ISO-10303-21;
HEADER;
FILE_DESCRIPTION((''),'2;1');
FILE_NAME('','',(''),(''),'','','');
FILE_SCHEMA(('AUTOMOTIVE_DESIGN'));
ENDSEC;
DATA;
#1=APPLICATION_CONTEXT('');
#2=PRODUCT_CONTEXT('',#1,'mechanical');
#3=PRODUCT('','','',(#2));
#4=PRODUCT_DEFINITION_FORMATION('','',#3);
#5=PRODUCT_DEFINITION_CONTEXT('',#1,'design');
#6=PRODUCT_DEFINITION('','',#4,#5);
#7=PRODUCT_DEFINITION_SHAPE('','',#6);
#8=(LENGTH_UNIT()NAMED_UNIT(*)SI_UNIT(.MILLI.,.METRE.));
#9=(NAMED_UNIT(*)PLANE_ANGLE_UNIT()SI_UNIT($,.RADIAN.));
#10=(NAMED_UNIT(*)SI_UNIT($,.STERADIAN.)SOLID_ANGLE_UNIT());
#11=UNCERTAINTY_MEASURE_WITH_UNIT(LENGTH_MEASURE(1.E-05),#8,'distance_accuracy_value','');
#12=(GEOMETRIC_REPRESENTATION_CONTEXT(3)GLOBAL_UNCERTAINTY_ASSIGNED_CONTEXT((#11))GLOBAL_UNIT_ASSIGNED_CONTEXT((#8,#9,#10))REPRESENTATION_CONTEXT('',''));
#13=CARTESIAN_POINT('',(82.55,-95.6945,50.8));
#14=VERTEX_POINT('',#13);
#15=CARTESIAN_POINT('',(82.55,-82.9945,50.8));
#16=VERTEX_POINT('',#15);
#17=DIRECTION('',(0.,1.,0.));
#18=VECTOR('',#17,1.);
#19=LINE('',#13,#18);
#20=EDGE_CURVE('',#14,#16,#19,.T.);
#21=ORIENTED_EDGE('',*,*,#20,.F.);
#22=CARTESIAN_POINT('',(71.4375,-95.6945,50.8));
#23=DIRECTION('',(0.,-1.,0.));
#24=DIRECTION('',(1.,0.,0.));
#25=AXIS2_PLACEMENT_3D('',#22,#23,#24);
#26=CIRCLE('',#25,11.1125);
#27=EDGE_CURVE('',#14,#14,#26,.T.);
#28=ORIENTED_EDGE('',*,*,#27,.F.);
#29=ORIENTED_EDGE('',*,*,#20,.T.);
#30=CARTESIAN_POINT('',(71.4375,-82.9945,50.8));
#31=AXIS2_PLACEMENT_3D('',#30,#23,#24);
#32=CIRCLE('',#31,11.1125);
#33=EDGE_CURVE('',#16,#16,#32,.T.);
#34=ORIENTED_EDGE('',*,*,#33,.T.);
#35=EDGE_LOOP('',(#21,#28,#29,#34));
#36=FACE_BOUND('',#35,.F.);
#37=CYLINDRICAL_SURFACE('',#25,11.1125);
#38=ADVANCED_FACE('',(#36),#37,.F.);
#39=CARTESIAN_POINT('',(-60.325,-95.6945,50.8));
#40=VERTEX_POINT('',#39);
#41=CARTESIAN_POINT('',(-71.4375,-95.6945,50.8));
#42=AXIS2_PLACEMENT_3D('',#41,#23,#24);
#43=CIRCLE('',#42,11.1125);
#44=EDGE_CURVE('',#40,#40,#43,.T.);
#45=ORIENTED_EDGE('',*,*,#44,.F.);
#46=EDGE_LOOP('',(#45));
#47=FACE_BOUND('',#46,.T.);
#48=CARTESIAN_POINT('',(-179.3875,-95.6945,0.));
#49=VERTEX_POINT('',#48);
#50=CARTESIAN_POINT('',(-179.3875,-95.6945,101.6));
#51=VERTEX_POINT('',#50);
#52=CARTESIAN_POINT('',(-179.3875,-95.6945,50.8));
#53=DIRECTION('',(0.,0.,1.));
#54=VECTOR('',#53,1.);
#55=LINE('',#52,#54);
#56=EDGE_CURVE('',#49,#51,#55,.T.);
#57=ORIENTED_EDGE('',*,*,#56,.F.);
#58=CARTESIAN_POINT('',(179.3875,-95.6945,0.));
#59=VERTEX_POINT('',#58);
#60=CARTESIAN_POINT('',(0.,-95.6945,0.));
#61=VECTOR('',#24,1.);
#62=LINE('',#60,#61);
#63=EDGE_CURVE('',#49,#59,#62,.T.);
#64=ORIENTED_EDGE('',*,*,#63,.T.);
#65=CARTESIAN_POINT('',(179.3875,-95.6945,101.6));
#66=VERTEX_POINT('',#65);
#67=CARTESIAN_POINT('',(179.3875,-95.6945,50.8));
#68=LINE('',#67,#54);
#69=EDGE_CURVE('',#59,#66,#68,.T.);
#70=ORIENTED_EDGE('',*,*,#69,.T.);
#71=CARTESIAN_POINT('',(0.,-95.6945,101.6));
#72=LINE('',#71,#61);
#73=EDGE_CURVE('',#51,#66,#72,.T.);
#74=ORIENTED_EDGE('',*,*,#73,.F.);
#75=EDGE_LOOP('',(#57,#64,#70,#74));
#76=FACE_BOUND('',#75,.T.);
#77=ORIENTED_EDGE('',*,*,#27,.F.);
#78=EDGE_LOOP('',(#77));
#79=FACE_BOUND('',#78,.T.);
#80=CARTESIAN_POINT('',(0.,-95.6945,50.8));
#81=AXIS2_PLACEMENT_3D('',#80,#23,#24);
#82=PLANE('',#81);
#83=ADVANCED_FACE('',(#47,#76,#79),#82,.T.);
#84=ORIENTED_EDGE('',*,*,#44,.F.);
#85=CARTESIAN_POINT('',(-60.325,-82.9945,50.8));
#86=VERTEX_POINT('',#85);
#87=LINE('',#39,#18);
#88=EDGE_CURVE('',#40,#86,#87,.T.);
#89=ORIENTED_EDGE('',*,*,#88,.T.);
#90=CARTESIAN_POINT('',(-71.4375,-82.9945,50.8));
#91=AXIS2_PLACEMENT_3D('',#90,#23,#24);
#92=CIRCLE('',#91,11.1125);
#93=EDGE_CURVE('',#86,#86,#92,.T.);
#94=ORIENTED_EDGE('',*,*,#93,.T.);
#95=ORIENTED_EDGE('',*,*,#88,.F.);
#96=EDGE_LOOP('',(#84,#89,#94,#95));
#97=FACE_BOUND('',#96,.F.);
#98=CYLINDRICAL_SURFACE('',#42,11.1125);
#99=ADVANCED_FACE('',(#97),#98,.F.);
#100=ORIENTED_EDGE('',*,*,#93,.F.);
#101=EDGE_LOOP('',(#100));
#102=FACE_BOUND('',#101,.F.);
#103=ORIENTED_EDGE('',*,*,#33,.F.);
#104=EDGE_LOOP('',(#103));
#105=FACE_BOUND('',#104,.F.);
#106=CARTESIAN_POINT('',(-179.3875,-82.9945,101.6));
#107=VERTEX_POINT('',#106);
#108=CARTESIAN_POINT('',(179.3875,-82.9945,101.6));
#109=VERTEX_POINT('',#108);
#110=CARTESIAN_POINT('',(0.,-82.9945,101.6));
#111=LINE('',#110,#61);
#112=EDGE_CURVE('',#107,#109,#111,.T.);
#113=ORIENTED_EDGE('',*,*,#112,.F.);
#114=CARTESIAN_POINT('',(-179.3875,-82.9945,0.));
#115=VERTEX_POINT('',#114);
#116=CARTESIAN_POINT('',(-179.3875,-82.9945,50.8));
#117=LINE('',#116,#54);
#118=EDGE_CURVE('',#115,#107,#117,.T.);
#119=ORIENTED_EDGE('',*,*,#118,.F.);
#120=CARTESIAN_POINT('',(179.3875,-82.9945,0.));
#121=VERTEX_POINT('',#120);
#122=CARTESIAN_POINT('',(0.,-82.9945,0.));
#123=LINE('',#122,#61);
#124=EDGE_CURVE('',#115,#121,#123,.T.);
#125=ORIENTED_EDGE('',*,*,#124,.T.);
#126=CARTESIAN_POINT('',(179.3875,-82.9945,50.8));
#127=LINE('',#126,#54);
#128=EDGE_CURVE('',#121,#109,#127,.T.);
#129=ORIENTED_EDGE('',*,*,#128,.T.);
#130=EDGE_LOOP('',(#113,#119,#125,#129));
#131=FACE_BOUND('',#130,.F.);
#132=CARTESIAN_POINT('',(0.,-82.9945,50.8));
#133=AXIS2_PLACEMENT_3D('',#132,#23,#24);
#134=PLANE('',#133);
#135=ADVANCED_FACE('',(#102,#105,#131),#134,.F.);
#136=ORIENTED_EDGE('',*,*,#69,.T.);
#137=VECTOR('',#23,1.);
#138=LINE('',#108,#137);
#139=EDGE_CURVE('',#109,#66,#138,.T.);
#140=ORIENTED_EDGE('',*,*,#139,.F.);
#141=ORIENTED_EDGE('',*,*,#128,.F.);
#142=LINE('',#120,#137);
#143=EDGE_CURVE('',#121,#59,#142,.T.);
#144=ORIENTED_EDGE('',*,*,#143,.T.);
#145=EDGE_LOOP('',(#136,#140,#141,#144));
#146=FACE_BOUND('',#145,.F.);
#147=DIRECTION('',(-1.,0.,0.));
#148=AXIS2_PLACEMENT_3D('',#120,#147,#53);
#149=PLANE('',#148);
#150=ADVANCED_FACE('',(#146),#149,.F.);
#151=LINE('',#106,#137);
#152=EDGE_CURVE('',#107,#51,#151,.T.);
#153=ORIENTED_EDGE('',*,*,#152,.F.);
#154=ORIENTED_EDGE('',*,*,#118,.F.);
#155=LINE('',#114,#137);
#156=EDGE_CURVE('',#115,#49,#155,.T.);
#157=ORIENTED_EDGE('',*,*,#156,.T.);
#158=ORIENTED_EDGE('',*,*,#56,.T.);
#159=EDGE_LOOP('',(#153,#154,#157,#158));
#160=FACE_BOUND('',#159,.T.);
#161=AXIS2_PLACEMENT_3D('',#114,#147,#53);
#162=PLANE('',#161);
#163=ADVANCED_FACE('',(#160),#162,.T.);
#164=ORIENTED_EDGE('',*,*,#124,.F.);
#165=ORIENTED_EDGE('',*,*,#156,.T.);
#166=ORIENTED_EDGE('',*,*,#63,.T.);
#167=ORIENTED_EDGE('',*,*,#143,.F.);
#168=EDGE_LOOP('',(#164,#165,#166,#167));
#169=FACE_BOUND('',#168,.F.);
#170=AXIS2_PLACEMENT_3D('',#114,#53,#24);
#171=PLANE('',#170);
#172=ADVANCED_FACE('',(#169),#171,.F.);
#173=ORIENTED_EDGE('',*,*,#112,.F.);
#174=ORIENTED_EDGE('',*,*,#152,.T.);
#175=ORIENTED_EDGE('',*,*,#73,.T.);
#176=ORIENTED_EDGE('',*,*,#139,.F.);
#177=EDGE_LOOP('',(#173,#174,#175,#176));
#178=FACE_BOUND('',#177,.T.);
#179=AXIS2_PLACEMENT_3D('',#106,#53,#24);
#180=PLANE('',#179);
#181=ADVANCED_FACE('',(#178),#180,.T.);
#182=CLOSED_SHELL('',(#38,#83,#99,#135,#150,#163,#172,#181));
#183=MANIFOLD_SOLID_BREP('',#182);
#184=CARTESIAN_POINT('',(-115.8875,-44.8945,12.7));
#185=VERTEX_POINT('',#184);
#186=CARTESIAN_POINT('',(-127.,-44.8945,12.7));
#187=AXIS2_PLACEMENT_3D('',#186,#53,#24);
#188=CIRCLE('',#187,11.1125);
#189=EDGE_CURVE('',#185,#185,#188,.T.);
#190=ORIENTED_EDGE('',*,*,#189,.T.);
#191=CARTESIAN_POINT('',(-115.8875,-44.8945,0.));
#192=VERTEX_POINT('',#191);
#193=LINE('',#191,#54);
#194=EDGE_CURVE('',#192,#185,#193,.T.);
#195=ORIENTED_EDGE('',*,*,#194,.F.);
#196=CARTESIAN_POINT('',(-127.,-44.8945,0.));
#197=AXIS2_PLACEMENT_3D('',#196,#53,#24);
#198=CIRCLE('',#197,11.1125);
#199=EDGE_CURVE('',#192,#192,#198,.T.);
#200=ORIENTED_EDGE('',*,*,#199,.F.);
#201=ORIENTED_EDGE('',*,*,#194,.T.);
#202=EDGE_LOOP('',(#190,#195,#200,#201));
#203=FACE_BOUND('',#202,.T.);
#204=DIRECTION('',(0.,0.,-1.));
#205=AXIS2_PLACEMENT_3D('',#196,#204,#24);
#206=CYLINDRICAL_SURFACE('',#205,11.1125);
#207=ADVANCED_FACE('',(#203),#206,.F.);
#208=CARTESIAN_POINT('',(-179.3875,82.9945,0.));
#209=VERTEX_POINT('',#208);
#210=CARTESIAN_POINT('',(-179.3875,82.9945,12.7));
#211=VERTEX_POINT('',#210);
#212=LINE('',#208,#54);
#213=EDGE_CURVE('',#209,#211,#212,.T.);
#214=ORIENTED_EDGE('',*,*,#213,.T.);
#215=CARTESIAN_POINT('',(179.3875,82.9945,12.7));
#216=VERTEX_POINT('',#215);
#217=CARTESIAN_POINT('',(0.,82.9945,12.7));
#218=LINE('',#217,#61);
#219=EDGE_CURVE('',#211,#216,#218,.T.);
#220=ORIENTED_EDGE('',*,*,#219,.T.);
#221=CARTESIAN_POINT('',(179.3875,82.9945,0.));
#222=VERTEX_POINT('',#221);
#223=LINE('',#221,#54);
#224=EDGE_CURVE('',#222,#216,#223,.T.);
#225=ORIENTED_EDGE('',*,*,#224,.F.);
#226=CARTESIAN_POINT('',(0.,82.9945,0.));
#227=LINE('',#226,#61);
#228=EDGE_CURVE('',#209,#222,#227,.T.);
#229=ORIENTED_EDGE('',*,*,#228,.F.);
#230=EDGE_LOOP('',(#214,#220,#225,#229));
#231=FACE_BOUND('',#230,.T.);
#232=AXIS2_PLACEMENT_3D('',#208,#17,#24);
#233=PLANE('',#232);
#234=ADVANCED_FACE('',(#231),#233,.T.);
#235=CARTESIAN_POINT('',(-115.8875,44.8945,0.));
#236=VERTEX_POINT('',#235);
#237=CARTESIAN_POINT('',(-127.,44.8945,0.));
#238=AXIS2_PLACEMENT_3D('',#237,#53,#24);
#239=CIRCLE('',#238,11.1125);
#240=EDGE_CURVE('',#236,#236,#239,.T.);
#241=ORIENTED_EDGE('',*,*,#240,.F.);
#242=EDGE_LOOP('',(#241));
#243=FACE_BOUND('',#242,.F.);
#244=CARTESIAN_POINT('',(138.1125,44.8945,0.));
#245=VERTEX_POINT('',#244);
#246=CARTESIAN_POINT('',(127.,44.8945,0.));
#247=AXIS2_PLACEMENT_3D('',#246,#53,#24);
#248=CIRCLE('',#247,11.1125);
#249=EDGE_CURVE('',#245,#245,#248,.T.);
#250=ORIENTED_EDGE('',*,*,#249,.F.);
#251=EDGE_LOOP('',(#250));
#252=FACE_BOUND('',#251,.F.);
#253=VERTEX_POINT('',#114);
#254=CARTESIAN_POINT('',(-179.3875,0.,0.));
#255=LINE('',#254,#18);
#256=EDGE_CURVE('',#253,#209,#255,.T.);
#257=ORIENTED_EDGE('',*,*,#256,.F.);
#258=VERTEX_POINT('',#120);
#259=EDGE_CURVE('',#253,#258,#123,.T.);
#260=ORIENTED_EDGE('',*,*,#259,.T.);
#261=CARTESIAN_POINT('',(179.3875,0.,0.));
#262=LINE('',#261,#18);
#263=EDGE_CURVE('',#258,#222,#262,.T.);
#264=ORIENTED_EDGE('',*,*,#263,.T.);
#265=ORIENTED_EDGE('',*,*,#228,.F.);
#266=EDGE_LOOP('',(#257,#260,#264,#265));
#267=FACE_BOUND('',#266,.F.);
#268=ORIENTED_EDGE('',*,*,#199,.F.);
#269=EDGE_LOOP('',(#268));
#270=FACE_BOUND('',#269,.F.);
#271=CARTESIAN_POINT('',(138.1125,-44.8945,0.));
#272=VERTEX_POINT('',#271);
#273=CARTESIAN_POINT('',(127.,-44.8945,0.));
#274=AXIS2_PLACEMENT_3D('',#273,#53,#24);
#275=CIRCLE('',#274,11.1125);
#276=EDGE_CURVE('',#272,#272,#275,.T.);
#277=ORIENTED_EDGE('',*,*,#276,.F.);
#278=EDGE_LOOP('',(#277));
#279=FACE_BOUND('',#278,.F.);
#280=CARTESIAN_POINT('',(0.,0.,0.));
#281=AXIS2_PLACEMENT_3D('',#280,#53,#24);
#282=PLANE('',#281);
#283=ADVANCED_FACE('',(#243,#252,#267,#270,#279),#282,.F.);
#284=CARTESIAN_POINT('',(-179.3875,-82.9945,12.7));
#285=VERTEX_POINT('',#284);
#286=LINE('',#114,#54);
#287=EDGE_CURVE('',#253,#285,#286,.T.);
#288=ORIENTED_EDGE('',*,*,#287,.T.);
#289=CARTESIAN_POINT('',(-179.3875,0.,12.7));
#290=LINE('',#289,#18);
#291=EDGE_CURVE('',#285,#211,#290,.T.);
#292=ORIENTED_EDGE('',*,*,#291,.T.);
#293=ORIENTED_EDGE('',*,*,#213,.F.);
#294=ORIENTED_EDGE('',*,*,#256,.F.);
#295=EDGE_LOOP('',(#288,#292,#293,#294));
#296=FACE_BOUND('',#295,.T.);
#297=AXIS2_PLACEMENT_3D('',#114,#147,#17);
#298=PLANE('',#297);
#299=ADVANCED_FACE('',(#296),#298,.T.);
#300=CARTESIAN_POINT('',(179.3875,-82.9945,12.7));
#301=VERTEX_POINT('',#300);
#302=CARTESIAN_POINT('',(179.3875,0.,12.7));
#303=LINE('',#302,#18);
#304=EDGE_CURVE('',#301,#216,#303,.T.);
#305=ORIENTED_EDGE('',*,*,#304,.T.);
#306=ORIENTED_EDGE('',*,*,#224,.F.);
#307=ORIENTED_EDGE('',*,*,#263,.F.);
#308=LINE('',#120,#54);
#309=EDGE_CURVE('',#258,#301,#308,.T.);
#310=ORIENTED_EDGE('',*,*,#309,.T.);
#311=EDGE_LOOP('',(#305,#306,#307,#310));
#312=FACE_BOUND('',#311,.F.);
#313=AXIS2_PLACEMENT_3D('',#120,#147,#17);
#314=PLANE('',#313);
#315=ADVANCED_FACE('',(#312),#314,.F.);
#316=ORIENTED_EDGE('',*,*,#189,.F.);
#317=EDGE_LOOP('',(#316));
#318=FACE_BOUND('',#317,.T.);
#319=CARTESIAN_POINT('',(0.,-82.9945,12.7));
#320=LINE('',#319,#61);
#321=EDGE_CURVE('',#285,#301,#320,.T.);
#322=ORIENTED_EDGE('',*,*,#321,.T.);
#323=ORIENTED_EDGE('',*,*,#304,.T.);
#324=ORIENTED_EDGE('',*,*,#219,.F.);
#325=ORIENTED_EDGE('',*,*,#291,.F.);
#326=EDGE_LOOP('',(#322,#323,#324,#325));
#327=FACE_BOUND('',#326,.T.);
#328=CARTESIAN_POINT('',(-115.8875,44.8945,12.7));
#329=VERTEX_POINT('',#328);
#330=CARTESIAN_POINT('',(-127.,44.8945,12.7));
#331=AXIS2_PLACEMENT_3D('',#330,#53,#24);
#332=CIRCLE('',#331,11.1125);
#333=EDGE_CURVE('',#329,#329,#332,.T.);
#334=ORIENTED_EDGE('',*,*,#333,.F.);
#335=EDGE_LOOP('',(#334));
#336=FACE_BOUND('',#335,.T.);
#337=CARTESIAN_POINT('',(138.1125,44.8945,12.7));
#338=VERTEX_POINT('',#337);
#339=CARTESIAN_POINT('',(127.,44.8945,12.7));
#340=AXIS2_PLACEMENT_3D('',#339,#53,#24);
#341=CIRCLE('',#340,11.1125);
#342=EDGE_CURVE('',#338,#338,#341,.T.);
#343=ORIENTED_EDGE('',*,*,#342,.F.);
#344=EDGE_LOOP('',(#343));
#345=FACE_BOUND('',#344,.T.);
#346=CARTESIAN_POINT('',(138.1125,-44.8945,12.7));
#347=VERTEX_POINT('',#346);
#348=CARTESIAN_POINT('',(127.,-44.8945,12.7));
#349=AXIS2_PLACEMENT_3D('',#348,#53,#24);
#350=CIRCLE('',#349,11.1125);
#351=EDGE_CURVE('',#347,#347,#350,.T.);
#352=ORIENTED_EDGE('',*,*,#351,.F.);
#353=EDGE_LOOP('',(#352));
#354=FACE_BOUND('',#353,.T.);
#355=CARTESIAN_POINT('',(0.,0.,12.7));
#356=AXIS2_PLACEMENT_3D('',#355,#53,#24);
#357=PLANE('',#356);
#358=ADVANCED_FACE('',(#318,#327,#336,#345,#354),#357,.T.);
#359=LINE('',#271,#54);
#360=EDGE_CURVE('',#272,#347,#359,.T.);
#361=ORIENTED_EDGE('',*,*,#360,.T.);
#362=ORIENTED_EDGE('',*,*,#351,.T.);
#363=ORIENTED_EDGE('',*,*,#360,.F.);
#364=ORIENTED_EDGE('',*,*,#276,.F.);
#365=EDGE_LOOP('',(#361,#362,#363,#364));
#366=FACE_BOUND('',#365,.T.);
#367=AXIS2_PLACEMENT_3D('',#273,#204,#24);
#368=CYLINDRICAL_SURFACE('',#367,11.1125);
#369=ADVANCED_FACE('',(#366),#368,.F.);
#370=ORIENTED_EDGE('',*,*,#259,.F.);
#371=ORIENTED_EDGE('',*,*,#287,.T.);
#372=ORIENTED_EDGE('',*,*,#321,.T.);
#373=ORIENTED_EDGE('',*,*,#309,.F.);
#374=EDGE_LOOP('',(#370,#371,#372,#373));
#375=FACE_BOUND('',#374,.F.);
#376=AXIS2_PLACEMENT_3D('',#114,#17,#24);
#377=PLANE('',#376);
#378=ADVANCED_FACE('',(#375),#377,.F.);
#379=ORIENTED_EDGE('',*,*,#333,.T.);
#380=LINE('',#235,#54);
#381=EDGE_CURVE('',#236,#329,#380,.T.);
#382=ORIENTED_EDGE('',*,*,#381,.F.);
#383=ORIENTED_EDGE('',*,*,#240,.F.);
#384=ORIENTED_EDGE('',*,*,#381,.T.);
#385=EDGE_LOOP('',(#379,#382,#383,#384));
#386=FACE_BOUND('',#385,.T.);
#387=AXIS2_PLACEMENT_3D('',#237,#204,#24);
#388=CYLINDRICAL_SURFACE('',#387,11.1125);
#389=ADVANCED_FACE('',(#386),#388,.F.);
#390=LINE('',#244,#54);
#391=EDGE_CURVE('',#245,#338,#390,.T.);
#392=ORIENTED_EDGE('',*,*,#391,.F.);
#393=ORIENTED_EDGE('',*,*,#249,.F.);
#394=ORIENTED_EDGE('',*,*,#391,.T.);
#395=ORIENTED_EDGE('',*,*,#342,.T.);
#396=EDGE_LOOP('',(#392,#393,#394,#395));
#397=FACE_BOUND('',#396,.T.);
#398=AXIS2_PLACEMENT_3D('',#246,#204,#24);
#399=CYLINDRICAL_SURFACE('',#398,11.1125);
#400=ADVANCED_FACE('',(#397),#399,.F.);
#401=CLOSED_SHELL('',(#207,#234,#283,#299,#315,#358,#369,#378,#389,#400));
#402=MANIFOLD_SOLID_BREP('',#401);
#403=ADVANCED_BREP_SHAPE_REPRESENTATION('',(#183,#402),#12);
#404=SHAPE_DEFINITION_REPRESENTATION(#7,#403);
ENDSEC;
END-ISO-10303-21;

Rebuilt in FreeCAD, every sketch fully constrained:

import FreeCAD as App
import Part
import Sketcher

V = App.Vector
Q = App.Units.Quantity

doc = App.newDocument("Part")
params = doc.addObject("Spreadsheet::Sheet", "Params")
for row, (alias, value) in enumerate([
    ("sketch1_diameter", "0.875 in"),
    ("sketch1_width", "14.125 in"),
    ("sketch1_height", "6.535 in"),
    ("pad1_length", "0.5 in"),
    ("sketch2_height", "4 in"),
    ("sketch2_width", "14.125 in"),
    ("pad2_length", "0.5 in"),
    ("sketch3_diameter", "0.875 in"),
], start=1):
    params.set(f"A{row}", alias)
    params.set(f"B{row}", "=" + value)
    params.setAlias(f"B{row}", alias)

body = doc.addObject("PartDesign::Body", "Body")

sketch1 = body.newObject("Sketcher::SketchObject", "Sketch")
sketch1.AttachmentSupport = (doc.getObject("XY_Plane"), [""])
sketch1.MapMode = "FlatFace"
sketch1.addGeometry([
    Part.LineSegment(V(-179, 83, 0), V(-179, -83, 0)),
    Part.LineSegment(V(-179, -83, 0), V(179, -83, 0)),
    Part.LineSegment(V(179, -83, 0), V(179, 83, 0)),
    Part.LineSegment(V(179, 83, 0), V(-179, 83, 0)),
    Part.Circle(V(-127, -45, 0), V(0, 0, 1), 11),
    Part.Circle(V(127, -45, 0), V(0, 0, 1), 11),
    Part.Circle(V(-127, 45, 0), V(0, 0, 1), 11),
    Part.Circle(V(127, 45, 0), V(0, 0, 1), 11),
], False)
sketch1.addConstraint([
    Sketcher.Constraint("Coincident", 0, 2, 1, 1),
    Sketcher.Constraint("Coincident", 1, 2, 2, 1),
    Sketcher.Constraint("Coincident", 2, 2, 3, 1),
    Sketcher.Constraint("Coincident", 3, 2, 0, 1),
    Sketcher.Constraint("Vertical", 0),
    Sketcher.Constraint("Horizontal", 1),
    Sketcher.Constraint("Vertical", 2),
    Sketcher.Constraint("Horizontal", 3),
    Sketcher.Constraint("Equal", 4, 5),
    Sketcher.Constraint("Equal", 5, 6),
    Sketcher.Constraint("Equal", 6, 7),
    Sketcher.Constraint("Symmetric", 5, 3, 6, 3, -1, 1),
    Sketcher.Constraint("Symmetric", 4, 3, 7, 3, -1, 1),
    Sketcher.Constraint("Symmetric", 0, 2, 2, 2, -1, 1),
    Sketcher.Constraint("Symmetric", 4, 3, 5, 3, -2),
    Sketcher.Constraint("Diameter", 4, Q("0.875 in")),
    Sketcher.Constraint("DistanceX", 4, 3, -1, 1, Q("5 in")),
    Sketcher.Constraint("DistanceY", 0, 2, 4, 3, Q("1.5 in")),
    Sketcher.Constraint("DistanceX", 1, 1, 1, 2, Q("14.125 in")),
    Sketcher.Constraint("DistanceY", 0, 2, 0, 1, Q("6.535 in")),
])
sketch1.setExpression("Constraints[15]", "Params.sketch1_diameter")
sketch1.setExpression("Constraints[18]", "Params.sketch1_width")
sketch1.setExpression("Constraints[19]", "Params.sketch1_height")
pad1 = body.newObject("PartDesign::Pad", "Pad")
pad1.Profile = sketch1
pad1.setExpression("Length", "Params.pad1_length")
body2 = doc.addObject("PartDesign::Body", "Body001")

sketch2 = body2.newObject("Sketcher::SketchObject", "Sketch001")
sketch2.AttachmentSupport = (doc.getObject("XZ_Plane001"), [""])
sketch2.MapMode = "FlatFace"
sketch2.AttachmentOffset = App.Placement(V(0, 0, 3.2675 * 25.4), App.Rotation())
sketch2.addGeometry([
    Part.LineSegment(V(-179, 102, 0), V(-179, 0, 0)),
    Part.LineSegment(V(-179, 0, 0), V(179, 0, 0)),
    Part.LineSegment(V(179, 0, 0), V(179, 102, 0)),
    Part.LineSegment(V(179, 102, 0), V(-179, 102, 0)),
], False)
sketch2.addConstraint([
    Sketcher.Constraint("Coincident", 0, 2, 1, 1),
    Sketcher.Constraint("Coincident", 1, 2, 2, 1),
    Sketcher.Constraint("Coincident", 2, 2, 3, 1),
    Sketcher.Constraint("Coincident", 3, 2, 0, 1),
    Sketcher.Constraint("Vertical", 0),
    Sketcher.Constraint("Horizontal", 1),
    Sketcher.Constraint("Vertical", 2),
    Sketcher.Constraint("Horizontal", 3),
    Sketcher.Constraint("Symmetric", 0, 2, 1, 2, -1, 1),
    Sketcher.Constraint("DistanceY", 0, 2, 0, 1, Q("4 in")),
    Sketcher.Constraint("DistanceX", 1, 1, 1, 2, Q("14.125 in")),
])
sketch2.setExpression("Constraints[9]", "Params.sketch2_height")
sketch2.setExpression("Constraints[10]", "Params.sketch2_width")
pad2 = body2.newObject("PartDesign::Pad", "Pad001")
pad2.Profile = sketch2
pad2.setExpression("Length", "Params.pad2_length")

sketch3 = body2.newObject("Sketcher::SketchObject", "Sketch002")
sketch3.AttachmentSupport = (doc.getObject("XZ_Plane001"), [""])
sketch3.MapMode = "FlatFace"
sketch3.AttachmentOffset = App.Placement(V(0, 0, 3.7675 * 25.4), App.Rotation())
sketch3.addGeometry([
    Part.Circle(V(-71, 51, 0), V(0, 0, 1), 11),
    Part.Circle(V(71, 51, 0), V(0, 0, 1), 11),
], False)
sketch3.addConstraint([
    Sketcher.Constraint("Equal", 0, 1),
    Sketcher.Constraint("Symmetric", 0, 3, 1, 3, -2),
    Sketcher.Constraint("Diameter", 0, Q("0.875 in")),
    Sketcher.Constraint("DistanceY", -1, 1, 0, 3, Q("2 in")),
    Sketcher.Constraint("DistanceX", 0, 3, -1, 1, Q("2.8125 in")),
])
sketch3.setExpression("Constraints[2]", "Params.sketch3_diameter")
pocket1 = body2.newObject("PartDesign::Pocket", "Pocket")
pocket1.Profile = sketch3
pocket1.Type = "ThroughAll"

doc.recompute()
